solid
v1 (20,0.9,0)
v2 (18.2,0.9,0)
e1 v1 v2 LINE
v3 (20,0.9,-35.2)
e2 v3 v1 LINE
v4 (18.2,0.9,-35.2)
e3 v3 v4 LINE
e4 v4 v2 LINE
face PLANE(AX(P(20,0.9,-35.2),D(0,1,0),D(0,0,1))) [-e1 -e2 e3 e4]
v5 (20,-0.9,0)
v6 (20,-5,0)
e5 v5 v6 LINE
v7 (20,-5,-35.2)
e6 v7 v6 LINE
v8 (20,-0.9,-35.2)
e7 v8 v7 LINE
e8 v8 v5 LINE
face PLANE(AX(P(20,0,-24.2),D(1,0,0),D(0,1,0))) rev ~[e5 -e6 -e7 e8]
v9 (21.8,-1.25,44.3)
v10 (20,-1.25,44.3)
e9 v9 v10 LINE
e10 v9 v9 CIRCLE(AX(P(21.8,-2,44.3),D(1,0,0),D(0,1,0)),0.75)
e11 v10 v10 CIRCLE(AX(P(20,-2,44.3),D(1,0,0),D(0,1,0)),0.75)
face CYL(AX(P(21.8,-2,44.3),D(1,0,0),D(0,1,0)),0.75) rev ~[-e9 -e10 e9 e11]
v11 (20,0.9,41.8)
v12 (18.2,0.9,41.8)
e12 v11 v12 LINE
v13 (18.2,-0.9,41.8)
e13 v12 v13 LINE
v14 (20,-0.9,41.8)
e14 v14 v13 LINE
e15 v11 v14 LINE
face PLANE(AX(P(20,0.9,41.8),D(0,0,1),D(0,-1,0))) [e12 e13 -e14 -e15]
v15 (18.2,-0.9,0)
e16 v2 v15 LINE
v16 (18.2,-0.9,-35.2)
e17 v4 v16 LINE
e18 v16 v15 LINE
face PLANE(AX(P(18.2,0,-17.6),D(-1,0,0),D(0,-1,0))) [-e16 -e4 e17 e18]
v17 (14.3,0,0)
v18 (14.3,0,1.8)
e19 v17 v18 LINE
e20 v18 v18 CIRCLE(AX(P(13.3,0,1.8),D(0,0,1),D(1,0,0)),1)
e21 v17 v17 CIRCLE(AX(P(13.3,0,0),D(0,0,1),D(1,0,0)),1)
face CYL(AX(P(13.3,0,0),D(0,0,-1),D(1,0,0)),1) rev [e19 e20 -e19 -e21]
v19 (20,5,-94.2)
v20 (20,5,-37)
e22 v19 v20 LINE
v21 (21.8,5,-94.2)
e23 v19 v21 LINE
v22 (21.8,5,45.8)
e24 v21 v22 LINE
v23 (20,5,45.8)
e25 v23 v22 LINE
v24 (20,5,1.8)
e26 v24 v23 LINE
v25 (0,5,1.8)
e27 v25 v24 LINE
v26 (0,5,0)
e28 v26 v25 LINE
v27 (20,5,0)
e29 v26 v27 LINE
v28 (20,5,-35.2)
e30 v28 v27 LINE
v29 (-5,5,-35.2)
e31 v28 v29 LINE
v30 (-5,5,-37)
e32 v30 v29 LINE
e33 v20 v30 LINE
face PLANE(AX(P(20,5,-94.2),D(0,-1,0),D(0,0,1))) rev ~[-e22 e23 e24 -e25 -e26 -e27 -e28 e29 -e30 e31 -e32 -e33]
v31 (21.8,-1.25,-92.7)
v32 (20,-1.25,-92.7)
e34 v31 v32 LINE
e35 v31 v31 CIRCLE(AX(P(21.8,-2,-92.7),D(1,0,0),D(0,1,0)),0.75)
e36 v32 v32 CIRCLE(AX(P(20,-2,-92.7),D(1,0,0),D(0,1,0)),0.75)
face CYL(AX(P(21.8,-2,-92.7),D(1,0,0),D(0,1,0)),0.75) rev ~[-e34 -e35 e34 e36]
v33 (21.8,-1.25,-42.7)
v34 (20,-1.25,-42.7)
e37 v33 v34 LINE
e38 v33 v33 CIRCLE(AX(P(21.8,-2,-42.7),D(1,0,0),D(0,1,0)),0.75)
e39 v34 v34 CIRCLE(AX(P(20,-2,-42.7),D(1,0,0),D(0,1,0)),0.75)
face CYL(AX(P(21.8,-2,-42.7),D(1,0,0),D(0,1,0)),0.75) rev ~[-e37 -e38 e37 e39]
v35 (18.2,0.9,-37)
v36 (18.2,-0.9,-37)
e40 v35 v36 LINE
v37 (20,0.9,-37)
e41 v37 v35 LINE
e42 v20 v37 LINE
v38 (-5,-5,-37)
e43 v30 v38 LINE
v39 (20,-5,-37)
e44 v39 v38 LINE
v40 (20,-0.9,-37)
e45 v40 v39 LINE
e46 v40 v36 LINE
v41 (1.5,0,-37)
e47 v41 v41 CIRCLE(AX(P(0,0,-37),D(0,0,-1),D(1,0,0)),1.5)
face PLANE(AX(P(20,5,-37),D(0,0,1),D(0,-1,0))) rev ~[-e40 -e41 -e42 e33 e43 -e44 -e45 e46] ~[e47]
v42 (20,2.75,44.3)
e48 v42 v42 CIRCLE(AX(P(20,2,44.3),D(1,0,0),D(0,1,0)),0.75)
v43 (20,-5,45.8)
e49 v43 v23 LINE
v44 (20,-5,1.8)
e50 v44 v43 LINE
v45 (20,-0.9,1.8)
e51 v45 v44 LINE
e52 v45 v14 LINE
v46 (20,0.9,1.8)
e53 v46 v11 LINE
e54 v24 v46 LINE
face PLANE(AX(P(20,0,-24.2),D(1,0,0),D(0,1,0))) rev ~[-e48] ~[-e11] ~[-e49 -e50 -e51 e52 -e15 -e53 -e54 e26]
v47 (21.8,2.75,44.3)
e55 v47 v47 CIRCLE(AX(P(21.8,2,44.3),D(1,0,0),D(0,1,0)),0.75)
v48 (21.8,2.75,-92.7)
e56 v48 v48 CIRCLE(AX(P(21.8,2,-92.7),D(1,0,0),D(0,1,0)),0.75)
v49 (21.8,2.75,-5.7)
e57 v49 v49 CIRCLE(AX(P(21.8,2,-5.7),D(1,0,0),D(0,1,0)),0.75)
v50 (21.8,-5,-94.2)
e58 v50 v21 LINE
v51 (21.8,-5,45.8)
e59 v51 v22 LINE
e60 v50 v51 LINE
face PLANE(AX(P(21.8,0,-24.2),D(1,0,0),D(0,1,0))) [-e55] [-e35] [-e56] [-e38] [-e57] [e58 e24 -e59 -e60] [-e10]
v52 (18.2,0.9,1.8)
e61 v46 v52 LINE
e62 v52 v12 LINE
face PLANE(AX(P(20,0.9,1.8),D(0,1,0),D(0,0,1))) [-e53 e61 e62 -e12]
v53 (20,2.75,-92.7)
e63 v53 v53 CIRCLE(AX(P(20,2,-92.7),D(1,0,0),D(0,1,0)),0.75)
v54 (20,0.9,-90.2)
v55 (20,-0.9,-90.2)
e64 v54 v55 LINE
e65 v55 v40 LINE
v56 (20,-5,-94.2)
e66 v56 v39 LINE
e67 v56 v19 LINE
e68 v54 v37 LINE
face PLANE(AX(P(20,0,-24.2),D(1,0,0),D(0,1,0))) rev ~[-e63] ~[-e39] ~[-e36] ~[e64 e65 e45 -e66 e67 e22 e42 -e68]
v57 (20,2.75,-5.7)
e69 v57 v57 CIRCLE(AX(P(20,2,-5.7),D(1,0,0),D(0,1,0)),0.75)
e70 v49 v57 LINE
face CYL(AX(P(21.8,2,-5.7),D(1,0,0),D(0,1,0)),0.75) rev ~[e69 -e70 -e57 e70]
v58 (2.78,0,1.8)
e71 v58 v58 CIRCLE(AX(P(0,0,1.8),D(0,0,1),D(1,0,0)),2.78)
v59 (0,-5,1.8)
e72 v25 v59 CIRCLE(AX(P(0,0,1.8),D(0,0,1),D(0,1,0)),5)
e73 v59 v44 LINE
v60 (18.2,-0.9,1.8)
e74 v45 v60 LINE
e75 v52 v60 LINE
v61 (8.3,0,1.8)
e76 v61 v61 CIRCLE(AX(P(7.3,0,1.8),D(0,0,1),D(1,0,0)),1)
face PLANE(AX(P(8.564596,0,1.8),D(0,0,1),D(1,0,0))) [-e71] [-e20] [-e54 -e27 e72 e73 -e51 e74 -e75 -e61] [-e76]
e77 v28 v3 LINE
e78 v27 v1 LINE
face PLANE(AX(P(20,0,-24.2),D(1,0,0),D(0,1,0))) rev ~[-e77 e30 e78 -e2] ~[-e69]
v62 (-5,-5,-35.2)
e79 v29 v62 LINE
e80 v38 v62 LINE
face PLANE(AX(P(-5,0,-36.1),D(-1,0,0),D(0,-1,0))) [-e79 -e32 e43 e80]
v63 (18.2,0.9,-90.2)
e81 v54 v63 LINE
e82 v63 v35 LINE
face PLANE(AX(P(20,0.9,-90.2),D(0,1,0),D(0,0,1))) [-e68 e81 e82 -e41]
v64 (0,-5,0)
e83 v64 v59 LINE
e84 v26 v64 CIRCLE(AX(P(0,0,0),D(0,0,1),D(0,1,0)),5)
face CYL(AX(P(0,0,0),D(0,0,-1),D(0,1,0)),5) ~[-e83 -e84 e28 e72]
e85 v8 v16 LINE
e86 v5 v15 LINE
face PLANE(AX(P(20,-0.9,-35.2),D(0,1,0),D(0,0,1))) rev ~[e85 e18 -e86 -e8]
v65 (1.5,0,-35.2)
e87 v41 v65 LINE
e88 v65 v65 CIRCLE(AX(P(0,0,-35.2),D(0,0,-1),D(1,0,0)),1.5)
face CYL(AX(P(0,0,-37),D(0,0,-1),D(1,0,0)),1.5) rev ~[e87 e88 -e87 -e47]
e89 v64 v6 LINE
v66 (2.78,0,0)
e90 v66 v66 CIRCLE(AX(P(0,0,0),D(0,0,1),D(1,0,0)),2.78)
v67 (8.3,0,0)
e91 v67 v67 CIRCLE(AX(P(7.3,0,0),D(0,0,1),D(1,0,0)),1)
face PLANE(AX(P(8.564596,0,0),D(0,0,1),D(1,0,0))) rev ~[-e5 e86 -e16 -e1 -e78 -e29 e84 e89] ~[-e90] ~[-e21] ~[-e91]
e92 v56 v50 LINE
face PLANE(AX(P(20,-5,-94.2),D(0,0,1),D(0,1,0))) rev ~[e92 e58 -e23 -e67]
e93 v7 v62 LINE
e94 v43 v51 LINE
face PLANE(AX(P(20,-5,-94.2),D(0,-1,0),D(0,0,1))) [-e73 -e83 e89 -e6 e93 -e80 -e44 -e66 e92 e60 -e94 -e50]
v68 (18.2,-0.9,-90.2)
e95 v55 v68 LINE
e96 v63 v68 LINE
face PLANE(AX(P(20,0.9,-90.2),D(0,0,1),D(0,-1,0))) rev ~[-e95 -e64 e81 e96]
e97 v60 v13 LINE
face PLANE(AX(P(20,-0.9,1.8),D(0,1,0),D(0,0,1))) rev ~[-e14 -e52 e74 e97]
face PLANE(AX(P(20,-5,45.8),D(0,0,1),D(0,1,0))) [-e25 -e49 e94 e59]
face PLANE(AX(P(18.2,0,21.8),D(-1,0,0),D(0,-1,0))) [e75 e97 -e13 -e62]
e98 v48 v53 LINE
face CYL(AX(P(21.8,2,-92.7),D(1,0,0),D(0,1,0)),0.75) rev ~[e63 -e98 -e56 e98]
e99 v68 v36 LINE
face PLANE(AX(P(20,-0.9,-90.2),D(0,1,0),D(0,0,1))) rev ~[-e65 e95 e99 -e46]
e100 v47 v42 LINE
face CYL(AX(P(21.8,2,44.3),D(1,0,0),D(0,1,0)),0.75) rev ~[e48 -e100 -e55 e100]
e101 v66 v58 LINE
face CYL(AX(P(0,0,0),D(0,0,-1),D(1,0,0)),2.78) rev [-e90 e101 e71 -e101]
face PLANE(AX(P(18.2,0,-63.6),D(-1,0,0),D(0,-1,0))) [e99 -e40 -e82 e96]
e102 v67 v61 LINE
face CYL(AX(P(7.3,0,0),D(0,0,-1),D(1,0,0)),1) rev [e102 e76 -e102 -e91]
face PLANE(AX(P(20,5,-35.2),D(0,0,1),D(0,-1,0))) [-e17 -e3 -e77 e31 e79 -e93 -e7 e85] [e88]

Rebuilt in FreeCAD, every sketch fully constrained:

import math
import FreeCAD as App
import Part
import Sketcher
Q = App.Units.Quantity

doc = App.newDocument("Part")
body = doc.addObject("PartDesign::Body", "Body")

# Sketch on XY plane
sketch1 = body.newObject("Sketcher::SketchObject", "Sketch")
sketch1.AttachmentSupport = (doc.getObject("XY_Plane"), [""])
sketch1.MapMode = "FlatFace"
sketch1.addGeometry([
    Part.ArcOfCircle(Part.Circle(App.Vector(0, 0, 0), App.Vector(0, 0, 1), 5), math.radians(90), math.radians(270)),  # 0
    Part.LineSegment(App.Vector(0, -5, 0), App.Vector(20, -5, 0)),  # 1
    Part.LineSegment(App.Vector(20, -5, 0), App.Vector(20, 5, 0)),  # 2
    Part.LineSegment(App.Vector(20, 5, 0), App.Vector(0, 5, 0)),  # 3
    Part.Circle(App.Vector(0, 0, 0), App.Vector(0, 0, 1), 2.8),  # 4
    Part.Circle(App.Vector(7.3, 0, 0), App.Vector(0, 0, 1), 1),  # 5
    Part.Circle(App.Vector(13.3, 0, 0), App.Vector(0, 0, 1), 1),  # 6
], False)
sketch1.addConstraint([
    Sketcher.Constraint("Tangent", 0, 2, 1, 1),
    Sketcher.Constraint("Coincident", 1, 2, 2, 1),
    Sketcher.Constraint("Coincident", 2, 2, 3, 1),
    Sketcher.Constraint("Tangent", 3, 2, 0, 1),
    Sketcher.Constraint("Horizontal", 1),
    Sketcher.Constraint("Vertical", 2),
    Sketcher.Constraint("Horizontal", 3),
    Sketcher.Constraint("Coincident", 0, 3, -1, 1),
    Sketcher.Constraint("Coincident", 4, 3, -1, 1),
    Sketcher.Constraint("Equal", 5, 6),
    Sketcher.Constraint("PointOnObject", 5, 3, -1),
    Sketcher.Constraint("PointOnObject", 6, 3, -1),
    Sketcher.Constraint("Diameter", 5, Q("2 mm")),
    Sketcher.Constraint("Radius", 0, Q("5 mm")),
    Sketcher.Constraint("Diameter", 4, Q("5.56 mm")),
    Sketcher.Constraint("DistanceX", 1, 1, 1, 2, Q("20 mm")),
    Sketcher.Constraint("DistanceX", 5, 3, 6, 3, Q("6 mm")),
    Sketcher.Constraint("DistanceX", -1, 1, 5, 3, Q("7.3 mm")),
])
pad1 = body.newObject("PartDesign::Pad", "Pad")
pad1.Profile = sketch1
pad1.Length = 1.8

# Sketch on YZ plane
sketch2 = body.newObject("Sketcher::SketchObject", "Sketch001")
sketch2.AttachmentSupport = (doc.getObject("YZ_Plane"), [""])
sketch2.MapMode = "FlatFace"
sketch2.AttachmentOffset = App.Placement(App.Vector(0, 0, 20), App.Rotation())
sketch2.addGeometry([
    Part.LineSegment(App.Vector(-5, 46, 0), App.Vector(-5, -94, 0)),
    Part.LineSegment(App.Vector(-5, -94, 0), App.Vector(5, -94, 0)),
    Part.LineSegment(App.Vector(5, -94, 0), App.Vector(5, 46, 0)),
    Part.LineSegment(App.Vector(5, 46, 0), App.Vector(-5, 46, 0)),
], False)
sketch2.addConstraint([
    Sketcher.Constraint("Coincident", 0, 2, 1, 1),
    Sketcher.Constraint("Coincident", 1, 2, 2, 1),
    Sketcher.Constraint("Coincident", 2, 2, 3, 1),
    Sketcher.Constraint("Coincident", 3, 2, 0, 1),
    Sketcher.Constraint("Vertical", 0),
    Sketcher.Constraint("Horizontal", 1),
    Sketcher.Constraint("Vertical", 2),
    Sketcher.Constraint("Horizontal", 3),
    Sketcher.Constraint("DistanceX", 1, 1, 1, 2, Q("10 mm")),
    Sketcher.Constraint("DistanceY", 0, 2, 0, 1, Q("140 mm")),
    Sketcher.Constraint("DistanceX", 0, 2, -1, 1, Q("5 mm")),
    Sketcher.Constraint("DistanceY", 0, 2, -1, 1, Q("94.2 mm")),
])
pad2 = body.newObject("PartDesign::Pad", "Pad001")
pad2.Profile = sketch2
pad2.Length = 1.8

# Sketch on YZ plane
sketch3 = body.newObject("Sketcher::SketchObject", "Sketch002")
sketch3.AttachmentSupport = (doc.getObject("YZ_Plane"), [""])
sketch3.MapMode = "FlatFace"
sketch3.AttachmentOffset = App.Placement(App.Vector(0, 0, 20), App.Rotation())
sketch3.addGeometry([
    Part.LineSegment(App.Vector(5, -35.2, 0), App.Vector(5, -37, 0)),
    Part.LineSegment(App.Vector(5, -37, 0), App.Vector(-5, -37, 0)),
    Part.LineSegment(App.Vector(-5, -37, 0), App.Vector(-5, -35.2, 0)),
    Part.LineSegment(App.Vector(-5, -35.2, 0), App.Vector(5, -35.2, 0)),
], False)
sketch3.addConstraint([
    Sketcher.Constraint("Coincident", 0, 2, 1, 1),
    Sketcher.Constraint("Coincident", 1, 2, 2, 1),
    Sketcher.Constraint("Coincident", 2, 2, 3, 1),
    Sketcher.Constraint("Coincident", 3, 2, 0, 1),
    Sketcher.Constraint("Vertical", 0),
    Sketcher.Constraint("Horizontal", 1),
    Sketcher.Constraint("Vertical", 2),
    Sketcher.Constraint("Horizontal", 3),
    Sketcher.Constraint("DistanceX", 1, 2, 1, 1, Q("10 mm")),
    Sketcher.Constraint("DistanceY", 0, 2, 0, 1, Q("1.8 mm")),
    Sketcher.Constraint("DistanceX", -1, 1, 0, 2, Q("5 mm")),
    Sketcher.Constraint("DistanceY", 0, 2, -1, 1, Q("37 mm")),
])
pad3 = body.newObject("PartDesign::Pad", "Pad002")
pad3.Profile = sketch3
pad3.Length = 25
pad3.Reversed = True

# Sketch on XY plane
sketch4 = body.newObject("Sketcher::SketchObject", "Sketch003")
sketch4.AttachmentSupport = (doc.getObject("XY_Plane"), [""])
sketch4.MapMode = "FlatFace"
sketch4.AttachmentOffset = App.Placement(App.Vector(0, 0, -37), App.Rotation())
sketch4.addGeometry(Part.Circle(App.Vector(0, 0, 0), App.Vector(0, 0, 1), 1.5), False)
sketch4.addConstraint([
    Sketcher.Constraint("Coincident", 0, 3, -1, 1),
    Sketcher.Constraint("Diameter", 0, Q("3 mm")),
])
pocket1 = body.newObject("PartDesign::Pocket", "Pocket")
pocket1.Profile = sketch4
pocket1.Type = "ThroughAll"
pocket1.Reversed = True

# Sketch on YZ plane
sketch5 = body.newObject("Sketcher::SketchObject", "Sketch004")
sketch5.AttachmentSupport = (doc.getObject("YZ_Plane"), [""])
sketch5.MapMode = "FlatFace"
sketch5.AttachmentOffset = App.Placement(App.Vector(0, 0, 21.8), App.Rotation())
sketch5.addGeometry([
    Part.Circle(App.Vector(-2, -92.7, 0), App.Vector(0, 0, 1), 0.8),  # 0
    Part.Circle(App.Vector(2, -92.7, 0), App.Vector(0, 0, 1), 0.8),  # 1
    Part.Circle(App.Vector(-2, -42.7, 0), App.Vector(0, 0, 1), 0.8),  # 2
    Part.Circle(App.Vector(2, -5.7, 0), App.Vector(0, 0, 1), 0.8),  # 3
    Part.Circle(App.Vector(2, 44.3, 0), App.Vector(0, 0, 1), 0.8),  # 4
    Part.Circle(App.Vector(-2, 44.3, 0), App.Vector(0, 0, 1), 0.8),  # 5
], False)
sketch5.addConstraint([
    Sketcher.Constraint("Equal", 0, 1),
    Sketcher.Constraint("Equal", 1, 2),
    Sketcher.Constraint("Equal", 2, 3),
    Sketcher.Constraint("Equal", 3, 4),
    Sketcher.Constraint("Equal", 4, 5),
    Sketcher.Constraint("Symmetric", 0, 3, 1, 3, -2),
    Sketcher.Constraint("Symmetric", 4, 3, 5, 3, -2),
    Sketcher.Constraint("Vertical", 0, 3, 2, 3),
    Sketcher.Constraint("Vertical", 1, 3, 3, 3),
    Sketcher.Constraint("Vertical", 3, 3, 4, 3),
    Sketcher.Constraint("Diameter", 0, Q("1.5 mm")),
    Sketcher.Constraint("DistanceX", 0, 3, -1, 1, Q("2 mm")),
    Sketcher.Constraint("DistanceY", 0, 3, 2, 3, Q("50 mm")),
    Sketcher.Constraint("DistanceY", 2, 3, 3, 3, Q("37 mm")),
    Sketcher.Constraint("DistanceY", 3, 3, 4, 3, Q("50 mm")),
    Sketcher.Constraint("DistanceY", 0, 3, -1, 1, Q("92.7 mm")),
])
pocket2 = body.newObject("PartDesign::Pocket", "Pocket001")
pocket2.Profile = sketch5
pocket2.Type = "ThroughAll"

# Sketch on YZ plane
sketch6 = body.newObject("Sketcher::SketchObject", "Sketch005")
sketch6.AttachmentSupport = (doc.getObject("YZ_Plane"), [""])
sketch6.MapMode = "FlatFace"
sketch6.AttachmentOffset = App.Placement(App.Vector(0, 0, 20), App.Rotation())
sketch6.addGeometry([
    Part.LineSegment(App.Vector(0.9, -37, 0), App.Vector(0.9, -90.2, 0)),  # 0
    Part.LineSegment(App.Vector(0.9, -90.2, 0), App.Vector(-0.9, -90.2, 0)),  # 1
    Part.LineSegment(App.Vector(-0.9, -90.2, 0), App.Vector(-0.9, -37, 0)),  # 2
    Part.LineSegment(App.Vector(-0.9, -37, 0), App.Vector(0.9, -37, 0)),  # 3
    Part.LineSegment(App.Vector(0.9, 0, 0), App.Vector(0.9, -35.2, 0)),  # 4
    Part.LineSegment(App.Vector(0.9, -35.2, 0), App.Vector(-0.9, -35.2, 0)),  # 5
    Part.LineSegment(App.Vector(-0.9, -35.2, 0), App.Vector(-0.9, 0, 0)),  # 6
    Part.LineSegment(App.Vector(-0.9, 0, 0), App.Vector(0.9, 0, 0)),  # 7
    Part.LineSegment(App.Vector(0.9, 41.8, 0), App.Vector(0.9, 1.8, 0)),  # 8
    Part.LineSegment(App.Vector(0.9, 1.8, 0), App.Vector(-0.9, 1.8, 0)),  # 9
    Part.LineSegment(App.Vector(-0.9, 1.8, 0), App.Vector(-0.9, 41.8, 0)),  # 10
    Part.LineSegment(App.Vector(-0.9, 41.8, 0), App.Vector(0.9, 41.8, 0)),  # 11
], False)
sketch6.addConstraint([
    Sketcher.Constraint("Coincident", 0, 2, 1, 1),
    Sketcher.Constraint("Coincident", 1, 2, 2, 1),
    Sketcher.Constraint("Coincident", 2, 2, 3, 1),
    Sketcher.Constraint("Coincident", 3, 2, 0, 1),
    Sketcher.Constraint("Coincident", 4, 2, 5, 1),
    Sketcher.Constraint("Coincident", 5, 2, 6, 1),
    Sketcher.Constraint("Coincident", 6, 2, 7, 1),
    Sketcher.Constraint("Coincident", 7, 2, 4, 1),
    Sketcher.Constraint("Coincident", 8, 2, 9, 1),
    Sketcher.Constraint("Coincident", 9, 2, 10, 1),
    Sketcher.Constraint("Coincident", 10, 2, 11, 1),
    Sketcher.Constraint("Coincident", 11, 2, 8, 1),
    Sketcher.Constraint("Vertical", 0),
    Sketcher.Constraint("Horizontal", 1),
    Sketcher.Constraint("Vertical", 2),
    Sketcher.Constraint("Horizontal", 3),
    Sketcher.Constraint("Vertical", 4),
    Sketcher.Constraint("Horizontal", 5),
    Sketcher.Constraint("Vertical", 6),
    Sketcher.Constraint("Horizontal", 7),
    Sketcher.Constraint("Vertical", 8),
    Sketcher.Constraint("Horizontal", 9),
    Sketcher.Constraint("Vertical", 10),
    Sketcher.Constraint("Horizontal", 11),
    Sketcher.Constraint("Symmetric", 6, 2, 7, 2, -1, 1),
    Sketcher.Constraint("Vertical", 3, 2, 4, 2),
    Sketcher.Constraint("Vertical", 2, 2, 5, 2),
    Sketcher.Constraint("Vertical", 7, 2, 8, 2),
    Sketcher.Constraint("Vertical", 6, 2, 9, 2),
    Sketcher.Constraint("DistanceY", 8, 2, 8, 1, Q("40 mm")),
    Sketcher.Constraint("DistanceX", 1, 2, 1, 1, Q("1.8 mm")),
    Sketcher.Constraint("DistanceY", 0, 2, 0, 1, Q("53.2 mm")),
    Sketcher.Constraint("DistanceY", 4, 2, 4, 1, Q("35.2 mm")),
    Sketcher.Constraint("DistanceY", 2, 2, -1, 1, Q("37 mm")),
    Sketcher.Constraint("DistanceY", 4, 2, 8, 2, Q("37 mm")),
])
pad4 = body.newObject("PartDesign::Pad", "Pad003")
pad4.Profile = sketch6
pad4.Length = 1.8
pad4.Reversed = True

doc.recompute()
